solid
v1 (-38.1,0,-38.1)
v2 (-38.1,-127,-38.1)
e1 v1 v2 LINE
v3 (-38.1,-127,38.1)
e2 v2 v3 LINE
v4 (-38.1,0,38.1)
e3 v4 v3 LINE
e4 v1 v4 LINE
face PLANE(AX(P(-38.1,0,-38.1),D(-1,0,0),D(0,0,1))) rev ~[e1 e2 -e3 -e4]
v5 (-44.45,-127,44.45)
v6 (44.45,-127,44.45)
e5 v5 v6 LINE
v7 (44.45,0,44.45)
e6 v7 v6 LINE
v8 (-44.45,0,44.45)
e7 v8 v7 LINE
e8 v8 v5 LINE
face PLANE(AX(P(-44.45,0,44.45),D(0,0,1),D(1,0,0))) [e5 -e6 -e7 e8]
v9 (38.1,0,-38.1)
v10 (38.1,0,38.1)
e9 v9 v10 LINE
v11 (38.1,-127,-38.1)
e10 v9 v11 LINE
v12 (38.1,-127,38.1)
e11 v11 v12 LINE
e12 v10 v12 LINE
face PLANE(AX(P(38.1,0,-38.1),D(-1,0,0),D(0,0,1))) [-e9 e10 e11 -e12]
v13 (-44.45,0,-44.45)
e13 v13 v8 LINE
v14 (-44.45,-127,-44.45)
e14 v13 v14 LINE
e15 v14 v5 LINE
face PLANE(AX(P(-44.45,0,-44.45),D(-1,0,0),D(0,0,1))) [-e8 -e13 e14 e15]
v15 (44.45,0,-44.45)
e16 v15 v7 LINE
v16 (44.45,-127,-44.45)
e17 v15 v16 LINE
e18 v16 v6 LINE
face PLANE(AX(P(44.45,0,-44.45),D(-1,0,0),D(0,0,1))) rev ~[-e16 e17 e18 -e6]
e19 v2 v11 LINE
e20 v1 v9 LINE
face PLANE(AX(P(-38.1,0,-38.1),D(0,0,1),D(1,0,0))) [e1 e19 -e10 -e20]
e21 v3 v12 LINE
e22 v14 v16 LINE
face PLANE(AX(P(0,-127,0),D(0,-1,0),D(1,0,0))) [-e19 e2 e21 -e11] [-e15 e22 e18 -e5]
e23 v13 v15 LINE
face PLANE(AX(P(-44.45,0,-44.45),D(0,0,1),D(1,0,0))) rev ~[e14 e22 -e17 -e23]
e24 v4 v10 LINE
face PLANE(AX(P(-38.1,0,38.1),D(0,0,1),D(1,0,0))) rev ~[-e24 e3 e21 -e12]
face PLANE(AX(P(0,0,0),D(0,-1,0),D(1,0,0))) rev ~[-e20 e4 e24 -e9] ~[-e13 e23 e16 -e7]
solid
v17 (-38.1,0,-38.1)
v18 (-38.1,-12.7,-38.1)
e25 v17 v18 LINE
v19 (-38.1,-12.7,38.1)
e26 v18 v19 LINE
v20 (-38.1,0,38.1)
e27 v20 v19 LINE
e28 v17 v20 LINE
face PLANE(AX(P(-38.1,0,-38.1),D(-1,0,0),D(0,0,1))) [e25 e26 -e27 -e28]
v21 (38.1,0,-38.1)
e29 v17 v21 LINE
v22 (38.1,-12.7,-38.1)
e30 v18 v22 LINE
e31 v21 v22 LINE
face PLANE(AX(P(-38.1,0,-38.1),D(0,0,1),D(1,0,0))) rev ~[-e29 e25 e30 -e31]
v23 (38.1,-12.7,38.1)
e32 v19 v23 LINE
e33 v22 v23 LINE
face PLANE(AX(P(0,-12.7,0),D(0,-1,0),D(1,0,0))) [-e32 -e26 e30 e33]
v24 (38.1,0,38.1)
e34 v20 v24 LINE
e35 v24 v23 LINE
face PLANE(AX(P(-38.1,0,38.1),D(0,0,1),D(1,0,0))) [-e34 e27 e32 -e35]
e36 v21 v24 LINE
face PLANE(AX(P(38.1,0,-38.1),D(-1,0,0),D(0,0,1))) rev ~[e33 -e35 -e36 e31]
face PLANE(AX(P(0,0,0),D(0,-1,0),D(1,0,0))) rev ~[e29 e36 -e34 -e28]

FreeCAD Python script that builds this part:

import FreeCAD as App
import Part
import Sketcher
from FreeCAD import Vector
Q = App.Units.Quantity

doc = App.newDocument("Part")
params = doc.addObject("Spreadsheet::Sheet", "Params")
for row, (alias, value) in enumerate([
    ("sketch1_width", "3 in"),
    ("sketch1_width2", "3.5 in"),
    ("pad1_length", "5 in"),
    ("sketch2_width", "3 in"),
    ("pad2_length", "0.5 in"),
], start=1):
    params.set(f"A{row}", alias)
    params.set(f"B{row}", "=" + value)
    params.setAlias(f"B{row}", alias)

body = doc.addObject("PartDesign::Body", "Body")

# Sketch on XZ plane
sketch1 = doc.addObject("Sketcher::SketchObject", "Sketch")
body.addObject(sketch1)
sketch1.AttachmentSupport = (doc.XZ_Plane, [""])
sketch1.MapMode = "FlatFace"
sketch1.addGeometry([
    Part.LineSegment(Vector(-44, 44, 0), Vector(-44, -44, 0)),  # 0
    Part.LineSegment(Vector(-44, -44, 0), Vector(44, -44, 0)),  # 1
    Part.LineSegment(Vector(44, -44, 0), Vector(44, 44, 0)),  # 2
    Part.LineSegment(Vector(44, 44, 0), Vector(-44, 44, 0)),  # 3
    Part.LineSegment(Vector(38, -38, 0), Vector(-38, -38, 0)),  # 4
    Part.LineSegment(Vector(-38, -38, 0), Vector(-38, 38, 0)),  # 5
    Part.LineSegment(Vector(-38, 38, 0), Vector(38, 38, 0)),  # 6
    Part.LineSegment(Vector(38, 38, 0), Vector(38, -38, 0)),  # 7
], False)
sketch1.addConstraint([
    Sketcher.Constraint("Coincident", 0, 2, 1, 1),
    Sketcher.Constraint("Coincident", 1, 2, 2, 1),
    Sketcher.Constraint("Coincident", 2, 2, 3, 1),
    Sketcher.Constraint("Coincident", 3, 2, 0, 1),
    Sketcher.Constraint("Coincident", 4, 2, 5, 1),
    Sketcher.Constraint("Coincident", 5, 2, 6, 1),
    Sketcher.Constraint("Coincident", 6, 2, 7, 1),
    Sketcher.Constraint("Coincident", 7, 2, 4, 1),
    Sketcher.Constraint("Vertical", 0),
    Sketcher.Constraint("Horizontal", 1),
    Sketcher.Constraint("Vertical", 2),
    Sketcher.Constraint("Horizontal", 3),
    Sketcher.Constraint("Horizontal", 4),
    Sketcher.Constraint("Vertical", 5),
    Sketcher.Constraint("Horizontal", 6),
    Sketcher.Constraint("Vertical", 7),
    Sketcher.Constraint("Symmetric", 0, 2, 2, 2, -1, 1),
    Sketcher.Constraint("Symmetric", 4, 2, 6, 2, -1, 1),
    Sketcher.Constraint("Equal", 3, 0),
    Sketcher.Constraint("Equal", 6, 5),
    Sketcher.Constraint("DistanceX", 4, 2, 4, 1, Q("3 in")),
    Sketcher.Constraint("DistanceX", 1, 1, 1, 2, Q("3.5 in")),
])
sketch1.setExpression("Constraints[20]", "Params.sketch1_width")
sketch1.setExpression("Constraints[21]", "Params.sketch1_width2")
pad1 = doc.addObject("PartDesign::Pad", "Pad")
body.addObject(pad1)
pad1.Profile = sketch1
pad1.setExpression("Length", "Params.pad1_length")
body2 = doc.addObject("PartDesign::Body", "Body001")

# Sketch on XZ plane
sketch2 = doc.addObject("Sketcher::SketchObject", "Sketch001")
body2.addObject(sketch2)
sketch2.AttachmentSupport = (doc.getObject("XZ_Plane001"), [""])
sketch2.MapMode = "FlatFace"
sketch2.addGeometry([
    Part.LineSegment(Vector(-38, 38, 0), Vector(-38, -38, 0)),
    Part.LineSegment(Vector(-38, -38, 0), Vector(38, -38, 0)),
    Part.LineSegment(Vector(38, -38, 0), Vector(38, 38, 0)),
    Part.LineSegment(Vector(38, 38, 0), Vector(-38, 38, 0)),
], False)
sketch2.addConstraint([
    Sketcher.Constraint("Coincident", 0, 2, 1, 1),
    Sketcher.Constraint("Coincident", 1, 2, 2, 1),
    Sketcher.Constraint("Coincident", 2, 2, 3, 1),
    Sketcher.Constraint("Coincident", 3, 2, 0, 1),
    Sketcher.Constraint("Vertical", 0),
    Sketcher.Constraint("Horizontal", 1),
    Sketcher.Constraint("Vertical", 2),
    Sketcher.Constraint("Horizontal", 3),
    Sketcher.Constraint("Symmetric", 0, 2, 2, 2, -1, 1),
    Sketcher.Constraint("Equal", 3, 0),
    Sketcher.Constraint("DistanceX", 1, 1, 1, 2, Q("3 in")),
])
sketch2.setExpression("Constraints[10]", "Params.sketch2_width")
pad2 = doc.addObject("PartDesign::Pad", "Pad001")
body2.addObject(pad2)
pad2.Profile = sketch2
pad2.setExpression("Length", "Params.pad2_length")

doc.recompute()
